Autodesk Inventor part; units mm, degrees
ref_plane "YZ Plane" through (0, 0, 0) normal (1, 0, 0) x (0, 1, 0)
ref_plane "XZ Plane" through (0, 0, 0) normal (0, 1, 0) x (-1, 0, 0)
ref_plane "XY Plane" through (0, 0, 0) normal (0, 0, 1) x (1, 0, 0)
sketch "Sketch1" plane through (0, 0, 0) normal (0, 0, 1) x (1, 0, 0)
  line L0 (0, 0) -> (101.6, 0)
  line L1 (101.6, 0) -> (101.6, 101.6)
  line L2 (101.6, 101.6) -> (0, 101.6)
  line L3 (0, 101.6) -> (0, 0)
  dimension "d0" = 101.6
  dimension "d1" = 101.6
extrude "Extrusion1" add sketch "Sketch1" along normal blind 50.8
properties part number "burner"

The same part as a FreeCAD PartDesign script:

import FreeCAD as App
import Part
import Sketcher

V = App.Vector
Q = App.Units.Quantity


def add_polygon(sketch, points):
    """Adds a closed chain of lines whose ends are joined by coincident constraints."""
    first, n = sketch.GeometryCount, len(points)
    for a, b in zip(points, points[1:] + points[:1]):
        sketch.addGeometry(Part.LineSegment(App.Vector(*a, 0), App.Vector(*b, 0)), False)
    for i in range(n):
        sketch.addConstraint(Sketcher.Constraint("Coincident", first + i, 2, first + (i + 1) % n, 1))

doc = App.newDocument("Part")
params = doc.addObject("Spreadsheet::Sheet", "Params")
for row, (alias, value) in enumerate([
    ("sketch1_width", "4 in"),
    ("pad1_length", "2 in"),
], start=1):
    params.set(f"A{row}", alias)
    params.set(f"B{row}", "=" + value)
    params.setAlias(f"B{row}", alias)

body = doc.addObject("PartDesign::Body", "Body")

sketch1 = body.newObject("Sketcher::SketchObject", "Sketch")
sketch1.AttachmentSupport = (doc.getObject("XY_Plane"), [""])
sketch1.MapMode = "FlatFace"
add_polygon(sketch1, [(0, 102), (0, 0), (102, 0), (102, 102)])
sketch1.addConstraint(Sketcher.Constraint("Vertical", 0))
sketch1.addConstraint(Sketcher.Constraint("Horizontal", 1))
sketch1.addConstraint(Sketcher.Constraint("Vertical", 2))
sketch1.addConstraint(Sketcher.Constraint("Horizontal", 3))
sketch1.addConstraint(Sketcher.Constraint("Coincident", 0, 2, -1, 1))
sketch1.addConstraint(Sketcher.Constraint("Equal", 3, 0))
sketch1.addConstraint(Sketcher.Constraint("DistanceX", 1, 1, 1, 2, Q("4 in")))
sketch1.setExpression("Constraints[10]", "Params.sketch1_width")
pad1 = body.newObject("PartDesign::Pad", "Pad")
pad1.Profile = sketch1
pad1.setExpression("Length", "Params.pad1_length")

doc.recompute()
